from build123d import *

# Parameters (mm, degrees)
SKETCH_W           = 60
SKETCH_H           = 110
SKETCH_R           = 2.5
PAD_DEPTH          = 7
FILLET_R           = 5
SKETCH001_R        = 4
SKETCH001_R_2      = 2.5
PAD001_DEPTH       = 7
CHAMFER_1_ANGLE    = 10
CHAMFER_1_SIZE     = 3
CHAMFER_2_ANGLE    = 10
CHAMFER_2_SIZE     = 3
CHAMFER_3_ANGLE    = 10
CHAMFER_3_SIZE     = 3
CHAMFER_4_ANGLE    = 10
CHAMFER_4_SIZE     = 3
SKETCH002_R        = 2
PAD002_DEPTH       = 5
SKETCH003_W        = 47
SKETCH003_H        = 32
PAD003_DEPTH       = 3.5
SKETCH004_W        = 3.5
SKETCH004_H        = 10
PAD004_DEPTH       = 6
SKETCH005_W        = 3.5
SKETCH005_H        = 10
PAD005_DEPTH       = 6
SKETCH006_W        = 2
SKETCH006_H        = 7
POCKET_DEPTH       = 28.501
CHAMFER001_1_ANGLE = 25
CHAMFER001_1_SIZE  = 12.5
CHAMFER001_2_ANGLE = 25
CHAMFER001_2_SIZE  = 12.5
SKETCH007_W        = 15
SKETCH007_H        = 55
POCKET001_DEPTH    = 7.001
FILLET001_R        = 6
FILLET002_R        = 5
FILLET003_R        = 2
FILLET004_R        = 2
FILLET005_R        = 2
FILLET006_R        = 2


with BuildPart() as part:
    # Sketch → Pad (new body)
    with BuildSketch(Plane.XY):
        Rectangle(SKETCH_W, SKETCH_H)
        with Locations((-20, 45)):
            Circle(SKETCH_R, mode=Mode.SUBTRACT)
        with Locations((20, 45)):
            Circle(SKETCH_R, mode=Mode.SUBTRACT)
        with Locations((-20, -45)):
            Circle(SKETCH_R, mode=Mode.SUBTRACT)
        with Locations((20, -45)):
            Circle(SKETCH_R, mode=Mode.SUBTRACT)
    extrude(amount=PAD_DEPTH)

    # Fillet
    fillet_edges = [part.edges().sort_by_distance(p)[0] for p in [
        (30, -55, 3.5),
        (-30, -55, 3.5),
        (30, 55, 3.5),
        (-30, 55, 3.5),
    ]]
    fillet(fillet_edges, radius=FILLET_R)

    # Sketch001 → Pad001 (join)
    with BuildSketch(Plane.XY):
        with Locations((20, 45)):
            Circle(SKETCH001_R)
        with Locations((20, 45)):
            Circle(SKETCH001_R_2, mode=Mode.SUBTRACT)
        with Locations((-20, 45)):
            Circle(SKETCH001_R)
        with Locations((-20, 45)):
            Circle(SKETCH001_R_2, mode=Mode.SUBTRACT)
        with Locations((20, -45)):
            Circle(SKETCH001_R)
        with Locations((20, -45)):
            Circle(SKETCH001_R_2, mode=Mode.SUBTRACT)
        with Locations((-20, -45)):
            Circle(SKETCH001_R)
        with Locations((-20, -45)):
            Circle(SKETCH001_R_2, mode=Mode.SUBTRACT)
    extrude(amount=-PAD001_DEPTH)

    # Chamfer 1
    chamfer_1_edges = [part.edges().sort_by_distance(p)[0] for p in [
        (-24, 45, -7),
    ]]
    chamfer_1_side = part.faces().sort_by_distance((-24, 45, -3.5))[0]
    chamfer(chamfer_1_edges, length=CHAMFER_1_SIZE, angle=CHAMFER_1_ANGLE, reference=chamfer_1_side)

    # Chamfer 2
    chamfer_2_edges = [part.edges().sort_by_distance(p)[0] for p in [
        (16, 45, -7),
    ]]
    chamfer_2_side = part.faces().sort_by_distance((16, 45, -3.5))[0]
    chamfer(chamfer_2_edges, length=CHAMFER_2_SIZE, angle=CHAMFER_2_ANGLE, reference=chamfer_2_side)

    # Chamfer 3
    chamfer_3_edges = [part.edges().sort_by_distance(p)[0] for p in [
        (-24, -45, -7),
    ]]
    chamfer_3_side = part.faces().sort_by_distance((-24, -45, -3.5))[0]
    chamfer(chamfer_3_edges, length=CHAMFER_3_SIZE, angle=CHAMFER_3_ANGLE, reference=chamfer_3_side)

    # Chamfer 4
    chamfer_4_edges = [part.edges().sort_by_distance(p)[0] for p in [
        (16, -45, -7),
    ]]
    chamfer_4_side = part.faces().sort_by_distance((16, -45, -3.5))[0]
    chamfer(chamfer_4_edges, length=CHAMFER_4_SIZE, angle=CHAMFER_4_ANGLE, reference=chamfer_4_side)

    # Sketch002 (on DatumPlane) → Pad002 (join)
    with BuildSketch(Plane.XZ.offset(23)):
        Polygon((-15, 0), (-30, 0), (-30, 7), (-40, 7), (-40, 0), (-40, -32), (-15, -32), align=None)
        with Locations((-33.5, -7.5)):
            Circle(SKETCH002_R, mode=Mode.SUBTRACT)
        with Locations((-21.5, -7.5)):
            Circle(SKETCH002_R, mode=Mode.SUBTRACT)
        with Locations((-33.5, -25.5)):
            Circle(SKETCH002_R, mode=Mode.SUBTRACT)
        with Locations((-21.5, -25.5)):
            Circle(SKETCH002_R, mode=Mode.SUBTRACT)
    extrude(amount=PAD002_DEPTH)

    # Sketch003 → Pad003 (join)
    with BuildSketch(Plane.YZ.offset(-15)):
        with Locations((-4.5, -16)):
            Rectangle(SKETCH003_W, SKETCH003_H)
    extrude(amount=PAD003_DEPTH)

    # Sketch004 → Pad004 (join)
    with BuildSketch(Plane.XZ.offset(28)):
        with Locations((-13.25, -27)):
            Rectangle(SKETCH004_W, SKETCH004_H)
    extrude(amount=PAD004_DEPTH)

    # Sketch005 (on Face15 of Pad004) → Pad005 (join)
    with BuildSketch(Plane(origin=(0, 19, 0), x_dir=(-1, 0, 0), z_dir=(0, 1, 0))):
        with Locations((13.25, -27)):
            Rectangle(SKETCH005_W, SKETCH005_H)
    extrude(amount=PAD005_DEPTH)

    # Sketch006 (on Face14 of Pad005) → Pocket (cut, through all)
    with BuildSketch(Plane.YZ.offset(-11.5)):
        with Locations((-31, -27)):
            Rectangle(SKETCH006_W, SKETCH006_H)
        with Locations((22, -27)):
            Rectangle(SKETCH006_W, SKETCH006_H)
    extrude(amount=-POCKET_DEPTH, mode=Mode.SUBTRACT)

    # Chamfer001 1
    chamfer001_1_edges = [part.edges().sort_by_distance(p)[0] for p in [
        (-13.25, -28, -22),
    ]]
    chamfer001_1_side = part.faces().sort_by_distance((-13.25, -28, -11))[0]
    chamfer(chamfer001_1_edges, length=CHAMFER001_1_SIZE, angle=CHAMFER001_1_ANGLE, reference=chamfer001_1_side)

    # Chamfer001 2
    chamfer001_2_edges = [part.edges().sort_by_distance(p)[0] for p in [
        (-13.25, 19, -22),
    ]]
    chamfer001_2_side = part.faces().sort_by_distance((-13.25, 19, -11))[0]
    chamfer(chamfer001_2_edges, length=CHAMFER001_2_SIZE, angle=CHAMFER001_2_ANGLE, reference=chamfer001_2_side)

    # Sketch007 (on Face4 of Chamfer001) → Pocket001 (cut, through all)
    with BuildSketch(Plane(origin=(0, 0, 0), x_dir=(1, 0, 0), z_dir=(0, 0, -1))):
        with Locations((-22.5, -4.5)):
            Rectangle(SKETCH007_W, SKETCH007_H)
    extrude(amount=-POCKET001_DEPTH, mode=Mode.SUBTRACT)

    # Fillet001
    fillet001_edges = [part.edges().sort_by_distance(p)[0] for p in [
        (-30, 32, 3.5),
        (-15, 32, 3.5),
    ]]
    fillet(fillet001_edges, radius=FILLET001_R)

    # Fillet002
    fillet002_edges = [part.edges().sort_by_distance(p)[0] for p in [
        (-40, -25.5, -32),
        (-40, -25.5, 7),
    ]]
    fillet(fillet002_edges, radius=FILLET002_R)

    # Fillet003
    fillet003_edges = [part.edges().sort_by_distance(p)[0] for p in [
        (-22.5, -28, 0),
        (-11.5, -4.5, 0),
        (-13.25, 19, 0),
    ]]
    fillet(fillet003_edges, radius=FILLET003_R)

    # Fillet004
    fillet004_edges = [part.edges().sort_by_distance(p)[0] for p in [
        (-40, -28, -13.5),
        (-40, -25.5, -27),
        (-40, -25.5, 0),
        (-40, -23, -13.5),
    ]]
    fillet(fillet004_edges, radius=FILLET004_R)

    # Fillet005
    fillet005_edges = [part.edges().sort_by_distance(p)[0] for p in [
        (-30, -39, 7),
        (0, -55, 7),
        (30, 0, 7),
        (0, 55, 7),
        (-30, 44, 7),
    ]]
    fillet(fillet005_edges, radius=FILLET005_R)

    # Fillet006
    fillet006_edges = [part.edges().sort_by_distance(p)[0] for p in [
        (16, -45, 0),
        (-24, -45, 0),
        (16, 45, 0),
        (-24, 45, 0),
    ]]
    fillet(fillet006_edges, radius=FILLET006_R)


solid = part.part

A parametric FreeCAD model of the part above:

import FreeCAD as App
import Part
import Sketcher
from FreeCAD import Vector
Q = App.Units.Quantity


def edges_at(feature, points):
    """Names of the edges that pass closest to the given points."""
    edges = feature.Shape.Edges
    near = lambda p: min(range(len(edges)), key=lambda i: edges[i].distToShape(Part.Vertex(*p))[0])
    return sorted({f"Edge{near(p) + 1}" for p in points})

doc = App.newDocument("Part")
body = doc.addObject("PartDesign::Body", "Body")

# Sketch on XY plane
sketch1 = doc.addObject("Sketcher::SketchObject", "Sketch")
body.addObject(sketch1)
sketch1.AttachmentSupport = (doc.XY_Plane, [""])
sketch1.MapMode = "FlatFace"
sketch1.addGeometry(Part.LineSegment(Vector(-30, 55, 0), Vector(-30, -55, 0)), False)
sketch1.addGeometry(Part.LineSegment(Vector(-30, -55, 0), Vector(30, -55, 0)), False)
sketch1.addGeometry(Part.LineSegment(Vector(30, -55, 0), Vector(30, 55, 0)), False)
sketch1.addGeometry(Part.LineSegment(Vector(30, 55, 0), Vector(-30, 55, 0)), False)
sketch1.addGeometry(Part.Circle(Vector(-20, -45, 0), Vector(0, 0, 1), 2.5), False)
sketch1.addGeometry(Part.Circle(Vector(20, -45, 0), Vector(0, 0, 1), 2.5), False)
sketch1.addGeometry(Part.Circle(Vector(-20, 45, 0), Vector(0, 0, 1), 2.5), False)
sketch1.addGeometry(Part.Circle(Vector(20, 45, 0), Vector(0, 0, 1), 2.5), False)
sketch1.addConstraint(Sketcher.Constraint("Coincident", 0, 2, 1, 1))
sketch1.addConstraint(Sketcher.Constraint("Coincident", 1, 2, 2, 1))
sketch1.addConstraint(Sketcher.Constraint("Coincident", 2, 2, 3, 1))
sketch1.addConstraint(Sketcher.Constraint("Coincident", 3, 2, 0, 1))
sketch1.addConstraint(Sketcher.Constraint("Vertical", 0))
sketch1.addConstraint(Sketcher.Constraint("Horizontal", 1))
sketch1.addConstraint(Sketcher.Constraint("Vertical", 2))
sketch1.addConstraint(Sketcher.Constraint("Horizontal", 3))
sketch1.addConstraint(Sketcher.Constraint("Equal", 4, 5))
sketch1.addConstraint(Sketcher.Constraint("Equal", 5, 6))
sketch1.addConstraint(Sketcher.Constraint("Equal", 6, 7))
sketch1.addConstraint(Sketcher.Constraint("Symmetric", 5, 3, 6, 3, -1, 1))
sketch1.addConstraint(Sketcher.Constraint("Symmetric", 4, 3, 7, 3, -1, 1))
sketch1.addConstraint(Sketcher.Constraint("Symmetric", 0, 2, 2, 2, -1, 1))
sketch1.addConstraint(Sketcher.Constraint("Symmetric", 4, 3, 5, 3, -2))
sketch1.addConstraint(Sketcher.Constraint("Diameter", 4, Q("5 mm")))
sketch1.addConstraint(Sketcher.Constraint("DistanceX", 1, 1, 1, 2, Q("60 mm")))
sketch1.addConstraint(Sketcher.Constraint("DistanceY", 0, 2, 0, 1, Q("110 mm")))
sketch1.addConstraint(Sketcher.Constraint("DistanceX", 4, 3, -1, 1, Q("20 mm")))
sketch1.addConstraint(Sketcher.Constraint("DistanceY", 4, 3, -1, 1, Q("45 mm")))
pad1 = doc.addObject("PartDesign::Pad", "Pad")
body.addObject(pad1)
pad1.Profile = sketch1
pad1.Length = 7
doc.recompute()

fillet = doc.addObject("PartDesign::Fillet", "Fillet")
body.addObject(fillet)
fillet.Base = (pad1, edges_at(pad1, [
    (30, -55, 3.5),
    (-30, -55, 3.5),
    (30, 55, 3.5),
    (-30, 55, 3.5),
]))
fillet.Radius = 5

# Sketch on XY plane
sketch2 = doc.addObject("Sketcher::SketchObject", "Sketch001")
body.addObject(sketch2)
sketch2.AttachmentSupport = (doc.XY_Plane, [""])
sketch2.MapMode = "FlatFace"
sketch2.addGeometry(Part.Circle(Vector(20, 45, 0), Vector(0, 0, 1), 4), False)
sketch2.addGeometry(Part.Circle(Vector(20, 45, 0), Vector(0, 0, 1), 2.5), False)
sketch2.addGeometry(Part.Circle(Vector(-20, 45, 0), Vector(0, 0, 1), 4), False)
sketch2.addGeometry(Part.Circle(Vector(-20, 45, 0), Vector(0, 0, 1), 2.5), False)
sketch2.addGeometry(Part.Circle(Vector(20, -45, 0), Vector(0, 0, 1), 4), False)
sketch2.addGeometry(Part.Circle(Vector(20, -45, 0), Vector(0, 0, 1), 2.5), False)
sketch2.addGeometry(Part.Circle(Vector(-20, -45, 0), Vector(0, 0, 1), 4), False)
sketch2.addGeometry(Part.Circle(Vector(-20, -45, 0), Vector(0, 0, 1), 2.5), False)
sketch2.addConstraint(Sketcher.Constraint("Coincident", 1, 3, 0, 3))
sketch2.addConstraint(Sketcher.Constraint("Coincident", 3, 3, 2, 3))
sketch2.addConstraint(Sketcher.Constraint("Coincident", 5, 3, 4, 3))
sketch2.addConstraint(Sketcher.Constraint("Coincident", 7, 3, 6, 3))
sketch2.addConstraint(Sketcher.Constraint("Equal", 0, 2))
sketch2.addConstraint(Sketcher.Constraint("Equal", 1, 3))
sketch2.addConstraint(Sketcher.Constraint("Equal", 2, 4))
sketch2.addConstraint(Sketcher.Constraint("Equal", 3, 5))
sketch2.addConstraint(Sketcher.Constraint("Equal", 4, 6))
sketch2.addConstraint(Sketcher.Constraint("Equal", 5, 7))
sketch2.addConstraint(Sketcher.Constraint("Symmetric", 2, 3, 4, 3, -1, 1))
sketch2.addConstraint(Sketcher.Constraint("Symmetric", 0, 3, 6, 3, -1, 1))
sketch2.addConstraint(Sketcher.Constraint("Symmetric", 0, 3, 2, 3, -2))
sketch2.addConstraint(Sketcher.Constraint("Diameter", 0, Q("8 mm")))
sketch2.addConstraint(Sketcher.Constraint("Diameter", 1, Q("5 mm")))
sketch2.addConstraint(Sketcher.Constraint("DistanceX", -1, 1, 0, 3, Q("20 mm")))
sketch2.addConstraint(Sketcher.Constraint("DistanceY", -1, 1, 0, 3, Q("45 mm")))
pad2 = doc.addObject("PartDesign::Pad", "Pad001")
body.addObject(pad2)
pad2.Profile = sketch2
pad2.Length = 7
pad2.Reversed = True
doc.recompute()

chamfer = doc.addObject("PartDesign::Chamfer", "Chamfer")
body.addObject(chamfer)
chamfer.Base = (pad2, edges_at(pad2, [(-24, 45, -7)]))
chamfer.ChamferType = "Distance and Angle"
chamfer.Size = 3
chamfer.Angle = 10
doc.recompute()

chamfer2 = doc.addObject("PartDesign::Chamfer", "Chamfer001")
body.addObject(chamfer2)
chamfer2.Base = (chamfer, edges_at(chamfer, [(16, 45, -7)]))
chamfer2.ChamferType = "Distance and Angle"
chamfer2.Size = 3
chamfer2.Angle = 10
doc.recompute()

chamfer3 = doc.addObject("PartDesign::Chamfer", "Chamfer002")
body.addObject(chamfer3)
chamfer3.Base = (chamfer2, edges_at(chamfer2, [(-24, -45, -7)]))
chamfer3.ChamferType = "Distance and Angle"
chamfer3.Size = 3
chamfer3.Angle = 10
doc.recompute()

chamfer4 = doc.addObject("PartDesign::Chamfer", "Chamfer003")
body.addObject(chamfer4)
chamfer4.Base = (chamfer3, edges_at(chamfer3, [(16, -45, -7)]))
chamfer4.ChamferType = "Distance and Angle"
chamfer4.Size = 3
chamfer4.Angle = 10

# Sketch on XZ plane
sketch3 = doc.addObject("Sketcher::SketchObject", "Sketch002")
body.addObject(sketch3)
sketch3.AttachmentSupport = (doc.XZ_Plane, [""])
sketch3.MapMode = "FlatFace"
sketch3.AttachmentOffset = App.Placement(Vector(0, 0, 23), App.Rotation())
sketch3.addGeometry(Part.LineSegment(Vector(-15, 0, 0), Vector(-30, 0, 0)), False)
sketch3.addGeometry(Part.LineSegment(Vector(-30, 0, 0), Vector(-30, 7, 0)), False)
sketch3.addGeometry(Part.LineSegment(Vector(-30, 7, 0), Vector(-40, 7, 0)), False)
sketch3.addGeometry(Part.LineSegment(Vector(-40, 7, 0), Vector(-40, -32, 0)), False)
sketch3.addGeometry(Part.LineSegment(Vector(-40, -32, 0), Vector(-15, -32, 0)), False)
sketch3.addGeometry(Part.LineSegment(Vector(-15, -32, 0), Vector(-15, 0, 0)), False)
sketch3.addGeometry(Part.Circle(Vector(-33.5, -25.5, 0), Vector(0, 0, 1), 2), False)
sketch3.addGeometry(Part.Circle(Vector(-21.5, -25.5, 0), Vector(0, 0, 1), 2), False)
sketch3.addGeometry(Part.Circle(Vector(-33.5, -7.5, 0), Vector(0, 0, 1), 2), False)
sketch3.addGeometry(Part.Circle(Vector(-21.5, -7.5, 0), Vector(0, 0, 1), 2), False)
sketch3.addConstraint(Sketcher.Constraint("Coincident", 0, 2, 1, 1))
sketch3.addConstraint(Sketcher.Constraint("Coincident", 1, 2, 2, 1))
sketch3.addConstraint(Sketcher.Constraint("Coincident", 2, 2, 3, 1))
sketch3.addConstraint(Sketcher.Constraint("Coincident", 3, 2, 4, 1))
sketch3.addConstraint(Sketcher.Constraint("Coincident", 4, 2, 5, 1))
sketch3.addConstraint(Sketcher.Constraint("Coincident", 5, 2, 0, 1))
sketch3.addConstraint(Sketcher.Constraint("Horizontal", 0))
sketch3.addConstraint(Sketcher.Constraint("Vertical", 1))
sketch3.addConstraint(Sketcher.Constraint("Horizontal", 2))
sketch3.addConstraint(Sketcher.Constraint("Vertical", 3))
sketch3.addConstraint(Sketcher.Constraint("Horizontal", 4))
sketch3.addConstraint(Sketcher.Constraint("Vertical", 5))
sketch3.addConstraint(Sketcher.Constraint("Equal", 6, 7))
sketch3.addConstraint(Sketcher.Constraint("Equal", 7, 8))
sketch3.addConstraint(Sketcher.Constraint("Equal", 8, 9))
sketch3.addConstraint(Sketcher.Constraint("PointOnObject", 0, 2, -1))
sketch3.addConstraint(Sketcher.Constraint("Horizontal", 6, 3, 7, 3))
sketch3.addConstraint(Sketcher.Constraint("Horizontal", 8, 3, 9, 3))
sketch3.addConstraint(Sketcher.Constraint("Vertical", 6, 3, 8, 3))
sketch3.addConstraint(Sketcher.Constraint("Vertical", 7, 3, 9, 3))
sketch3.addConstraint(Sketcher.Constraint("Diameter", 6, Q("4 mm")))
sketch3.addConstraint(Sketcher.Constraint("DistanceX", 0, 2, 0, 1, Q("15 mm")))
sketch3.addConstraint(Sketcher.Constraint("DistanceX", 2, 2, 2, 1, Q("10 mm")))
sketch3.addConstraint(Sketcher.Constraint("DistanceY", 1, 1, 1, 2, Q("7 mm")))
sketch3.addConstraint(Sketcher.Constraint("DistanceY", 3, 2, 3, 1, Q("39 mm")))
sketch3.addConstraint(Sketcher.Constraint("DistanceX", 0, 2, -1, 1, Q("30 mm")))
sketch3.addConstraint(Sketcher.Constraint("DistanceX", 6, 3, 7, 3, Q("12 mm")))
sketch3.addConstraint(Sketcher.Constraint("DistanceY", 6, 3, 8, 3, Q("18 mm")))
sketch3.addConstraint(Sketcher.Constraint("DistanceX", 6, 3, -1, 1, Q("33.5 mm")))
sketch3.addConstraint(Sketcher.Constraint("DistanceY", 6, 3, -1, 1, Q("25.5 mm")))
pad3 = doc.addObject("PartDesign::Pad", "Pad002")
body.addObject(pad3)
pad3.Profile = sketch3
pad3.Length = 5

# Sketch on YZ plane
sketch4 = doc.addObject("Sketcher::SketchObject", "Sketch003")
body.addObject(sketch4)
sketch4.AttachmentSupport = (doc.YZ_Plane, [""])
sketch4.MapMode = "FlatFace"
sketch4.AttachmentOffset = App.Placement(Vector(0, 0, -15), App.Rotation())
sketch4.addGeometry(Part.LineSegment(Vector(-28, 0, 0), Vector(-28, -32, 0)), False)
sketch4.addGeometry(Part.LineSegment(Vector(-28, -32, 0), Vector(19, -32, 0)), False)
sketch4.addGeometry(Part.LineSegment(Vector(19, -32, 0), Vector(19, 0, 0)), False)
sketch4.addGeometry(Part.LineSegment(Vector(19, 0, 0), Vector(-28, 0, 0)), False)
sketch4.addConstraint(Sketcher.Constraint("Coincident", 0, 2, 1, 1))
sketch4.addConstraint(Sketcher.Constraint("Coincident", 1, 2, 2, 1))
sketch4.addConstraint(Sketcher.Constraint("Coincident", 2, 2, 3, 1))
sketch4.addConstraint(Sketcher.Constraint("Coincident", 3, 2, 0, 1))
sketch4.addConstraint(Sketcher.Constraint("Vertical", 0))
sketch4.addConstraint(Sketcher.Constraint("Horizontal", 1))
sketch4.addConstraint(Sketcher.Constraint("Vertical", 2))
sketch4.addConstraint(Sketcher.Constraint("Horizontal", 3))
sketch4.addConstraint(Sketcher.Constraint("PointOnObject", 2, 2, -1))
sketch4.addConstraint(Sketcher.Constraint("DistanceX", 1, 1, 1, 2, Q("47 mm")))
sketch4.addConstraint(Sketcher.Constraint("DistanceY", 0, 2, 0, 1, Q("32 mm")))
sketch4.addConstraint(Sketcher.Constraint("DistanceX", 0, 2, -1, 1, Q("28 mm")))
pad4 = doc.addObject("PartDesign::Pad", "Pad003")
body.addObject(pad4)
pad4.Profile = sketch4
pad4.Length = 3.5

# Sketch on XZ plane
sketch5 = doc.addObject("Sketcher::SketchObject", "Sketch004")
body.addObject(sketch5)
sketch5.AttachmentSupport = (doc.XZ_Plane, [""])
sketch5.MapMode = "FlatFace"
sketch5.AttachmentOffset = App.Placement(Vector(0, 0, 28), App.Rotation())
sketch5.addGeometry(Part.LineSegment(Vector(-15, -22, 0), Vector(-15, -32, 0)), False)
sketch5.addGeometry(Part.LineSegment(Vector(-15, -32, 0), Vector(-11.5, -32, 0)), False)
sketch5.addGeometry(Part.LineSegment(Vector(-11.5, -32, 0), Vector(-11.5, -22, 0)), False)
sketch5.addGeometry(Part.LineSegment(Vector(-11.5, -22, 0), Vector(-15, -22, 0)), False)
sketch5.addConstraint(Sketcher.Constraint("Coincident", 0, 2, 1, 1))
sketch5.addConstraint(Sketcher.Constraint("Coincident", 1, 2, 2, 1))
sketch5.addConstraint(Sketcher.Constraint("Coincident", 2, 2, 3, 1))
sketch5.addConstraint(Sketcher.Constraint("Coincident", 3, 2, 0, 1))
sketch5.addConstraint(Sketcher.Constraint("Vertical", 0))
sketch5.addConstraint(Sketcher.Constraint("Horizontal", 1))
sketch5.addConstraint(Sketcher.Constraint("Vertical", 2))
sketch5.addConstraint(Sketcher.Constraint("Horizontal", 3))
sketch5.addConstraint(Sketcher.Constraint("DistanceY", 0, 2, 0, 1, Q("10 mm")))
sketch5.addConstraint(Sketcher.Constraint("DistanceX", 1, 1, 1, 2, Q("3.5 mm")))
sketch5.addConstraint(Sketcher.Constraint("DistanceX", 0, 2, -1, 1, Q("15 mm")))
sketch5.addConstraint(Sketcher.Constraint("DistanceY", 0, 2, -1, 1, Q("32 mm")))
pad5 = doc.addObject("PartDesign::Pad", "Pad004")
body.addObject(pad5)
pad5.Profile = sketch5
pad5.Length = 6

# Sketch on XZ plane
sketch6 = doc.addObject("Sketcher::SketchObject", "Sketch005")
body.addObject(sketch6)
sketch6.AttachmentSupport = (doc.XZ_Plane, [""])
sketch6.MapMode = "FlatFace"
sketch6.AttachmentOffset = App.Placement(Vector(0, 0, -19), App.Rotation())
sketch6.addGeometry(Part.LineSegment(Vector(-11.5, -22, 0), Vector(-11.5, -32, 0)), False)
sketch6.addGeometry(Part.LineSegment(Vector(-11.5, -32, 0), Vector(-15, -32, 0)), False)
sketch6.addGeometry(Part.LineSegment(Vector(-15, -32, 0), Vector(-15, -22, 0)), False)
sketch6.addGeometry(Part.LineSegment(Vector(-15, -22, 0), Vector(-11.5, -22, 0)), False)
sketch6.addConstraint(Sketcher.Constraint("Coincident", 0, 2, 1, 1))
sketch6.addConstraint(Sketcher.Constraint("Coincident", 1, 2, 2, 1))
sketch6.addConstraint(Sketcher.Constraint("Coincident", 2, 2, 3, 1))
sketch6.addConstraint(Sketcher.Constraint("Coincident", 3, 2, 0, 1))
sketch6.addConstraint(Sketcher.Constraint("Vertical", 0))
sketch6.addConstraint(Sketcher.Constraint("Horizontal", 1))
sketch6.addConstraint(Sketcher.Constraint("Vertical", 2))
sketch6.addConstraint(Sketcher.Constraint("Horizontal", 3))
sketch6.addConstraint(Sketcher.Constraint("DistanceY", 0, 2, 0, 1, Q("10 mm")))
sketch6.addConstraint(Sketcher.Constraint("DistanceX", 1, 2, 1, 1, Q("3.5 mm")))
sketch6.addConstraint(Sketcher.Constraint("DistanceY", 0, 2, -1, 1, Q("32 mm")))
sketch6.addConstraint(Sketcher.Constraint("DistanceX", 1, 2, -1, 1, Q("15 mm")))
pad6 = doc.addObject("PartDesign::Pad", "Pad005")
body.addObject(pad6)
pad6.Profile = sketch6
pad6.Length = 6
pad6.Reversed = True

# Sketch on YZ plane
sketch7 = doc.addObject("Sketcher::SketchObject", "Sketch006")
body.addObject(sketch7)
sketch7.AttachmentSupport = (doc.YZ_Plane, [""])
sketch7.MapMode = "FlatFace"
sketch7.AttachmentOffset = App.Placement(Vector(0, 0, -11.5), App.Rotation())
sketch7.addGeometry(Part.LineSegment(Vector(-32, -23.5, 0), Vector(-32, -30.5, 0)), False)
sketch7.addGeometry(Part.LineSegment(Vector(-32, -30.5, 0), Vector(-30, -30.5, 0)), False)
sketch7.addGeometry(Part.LineSegment(Vector(-30, -30.5, 0), Vector(-30, -23.5, 0)), False)
sketch7.addGeometry(Part.LineSegment(Vector(-30, -23.5, 0), Vector(-32, -23.5, 0)), False)
sketch7.addGeometry(Part.LineSegment(Vector(21, -23.5, 0), Vector(21, -30.5, 0)), False)
sketch7.addGeometry(Part.LineSegment(Vector(21, -30.5, 0), Vector(23, -30.5, 0)), False)
sketch7.addGeometry(Part.LineSegment(Vector(23, -30.5, 0), Vector(23, -23.5, 0)), False)
sketch7.addGeometry(Part.LineSegment(Vector(23, -23.5, 0), Vector(21, -23.5, 0)), False)
sketch7.addConstraint(Sketcher.Constraint("Coincident", 0, 2, 1, 1))
sketch7.addConstraint(Sketcher.Constraint("Coincident", 1, 2, 2, 1))
sketch7.addConstraint(Sketcher.Constraint("Coincident", 2, 2, 3, 1))
sketch7.addConstraint(Sketcher.Constraint("Coincident", 3, 2, 0, 1))
sketch7.addConstraint(Sketcher.Constraint("Coincident", 4, 2, 5, 1))
sketch7.addConstraint(Sketcher.Constraint("Coincident", 5, 2, 6, 1))
sketch7.addConstraint(Sketcher.Constraint("Coincident", 6, 2, 7, 1))
sketch7.addConstraint(Sketcher.Constraint("Coincident", 7, 2, 4, 1))
sketch7.addConstraint(Sketcher.Constraint("Vertical", 0))
sketch7.addConstraint(Sketcher.Constraint("Horizontal", 1))
sketch7.addConstraint(Sketcher.Constraint("Vertical", 2))
sketch7.addConstraint(Sketcher.Constraint("Horizontal", 3))
sketch7.addConstraint(Sketcher.Constraint("Vertical", 4))
sketch7.addConstraint(Sketcher.Constraint("Horizontal", 5))
sketch7.addConstraint(Sketcher.Constraint("Vertical", 6))
sketch7.addConstraint(Sketcher.Constraint("Horizontal", 7))
sketch7.addConstraint(Sketcher.Constraint("Horizontal", 1, 2, 4, 2))
sketch7.addConstraint(Sketcher.Constraint("Horizontal", 3, 2, 6, 2))
sketch7.addConstraint(Sketcher.Constraint("Equal", 3, 5))
sketch7.addConstraint(Sketcher.Constraint("DistanceX", 1, 1, 1, 2, Q("2 mm")))
sketch7.addConstraint(Sketcher.Constraint("DistanceY", 0, 2, 0, 1, Q("7 mm")))
sketch7.addConstraint(Sketcher.Constraint("DistanceX", 0, 2, -1, 1, Q("32 mm")))
sketch7.addConstraint(Sketcher.Constraint("DistanceX", -1, 1, 4, 2, Q("21 mm")))
sketch7.addConstraint(Sketcher.Constraint("DistanceY", 0, 2, -1, 1, Q("30.5 mm")))
pocket1 = doc.addObject("PartDesign::Pocket", "Pocket")
body.addObject(pocket1)
pocket1.Profile = sketch7
pocket1.Type = "ThroughAll"
doc.recompute()

chamfer5 = doc.addObject("PartDesign::Chamfer", "Chamfer004")
body.addObject(chamfer5)
chamfer5.Base = (pocket1, edges_at(pocket1, [(-13.25, -28, -22)]))
chamfer5.ChamferType = "Distance and Angle"
chamfer5.Size = 12.5
chamfer5.Angle = 25
doc.recompute()

chamfer6 = doc.addObject("PartDesign::Chamfer", "Chamfer005")
body.addObject(chamfer6)
chamfer6.Base = (chamfer5, edges_at(chamfer5, [(-13.25, 19, -22)]))
chamfer6.ChamferType = "Distance and Angle"
chamfer6.Size = 12.5
chamfer6.Angle = 25

# Sketch on XY plane
sketch8 = doc.addObject("Sketcher::SketchObject", "Sketch007")
body.addObject(sketch8)
sketch8.AttachmentSupport = (doc.XY_Plane, [""])
sketch8.MapMode = "FlatFace"
sketch8.addGeometry(Part.LineSegment(Vector(-30, -23, 0), Vector(-30, 32, 0)), False)
sketch8.addGeometry(Part.LineSegment(Vector(-30, 32, 0), Vector(-15, 32, 0)), False)
sketch8.addGeometry(Part.LineSegment(Vector(-15, 32, 0), Vector(-15, -23, 0)), False)
sketch8.addGeometry(Part.LineSegment(Vector(-15, -23, 0), Vector(-30, -23, 0)), False)
sketch8.addConstraint(Sketcher.Constraint("Coincident", 0, 2, 1, 1))
sketch8.addConstraint(Sketcher.Constraint("Coincident", 1, 2, 2, 1))
sketch8.addConstraint(Sketcher.Constraint("Coincident", 2, 2, 3, 1))
sketch8.addConstraint(Sketcher.Constraint("Coincident", 3, 2, 0, 1))
sketch8.addConstraint(Sketcher.Constraint("Vertical", 0))
sketch8.addConstraint(Sketcher.Constraint("Horizontal", 1))
sketch8.addConstraint(Sketcher.Constraint("Vertical", 2))
sketch8.addConstraint(Sketcher.Constraint("Horizontal", 3))
sketch8.addConstraint(Sketcher.Constraint("DistanceX", 1, 1, 1, 2, Q("15 mm")))
sketch8.addConstraint(Sketcher.Constraint("DistanceY", 0, 1, 0, 2, Q("55 mm")))
sketch8.addConstraint(Sketcher.Constraint("DistanceX", 0, 2, -1, 1, Q("30 mm")))
sketch8.addConstraint(Sketcher.Constraint("DistanceY", -1, 1, 0, 2, Q("32 mm")))
pocket2 = doc.addObject("PartDesign::Pocket", "Pocket001")
body.addObject(pocket2)
pocket2.Profile = sketch8
pocket2.Type = "ThroughAll"
pocket2.Reversed = True
doc.recompute()

fillet2 = doc.addObject("PartDesign::Fillet", "Fillet001")
body.addObject(fillet2)
fillet2.Base = (pocket2, edges_at(pocket2, [(-30, 32, 3.5), (-15, 32, 3.5)]))
fillet2.Radius = 6
doc.recompute()

fillet3 = doc.addObject("PartDesign::Fillet", "Fillet002")
body.addObject(fillet3)
fillet3.Base = (fillet2, edges_at(fillet2, [(-40, -25.5, -32), (-40, -25.5, 7)]))
fillet3.Radius = 5
doc.recompute()

fillet4 = doc.addObject("PartDesign::Fillet", "Fillet003")
body.addObject(fillet4)
fillet4.Base = (fillet3, edges_at(fillet3, [(-20.75, -28, 0), (-11.5, -4.5, 0), (-13.25, 19, 0)]))
fillet4.Radius = 2
doc.recompute()

fillet5 = doc.addObject("PartDesign::Fillet", "Fillet004")
body.addObject(fillet5)
fillet5.Base = (fillet4, edges_at(fillet4, [
    (-40, -28, -12.5),
    (-40, -25.5, -27),
    (-40, -25.5, 2),
    (-40, -23, -12.5),
]))
fillet5.Radius = 2
doc.recompute()

fillet6 = doc.addObject("PartDesign::Fillet", "Fillet005")
body.addObject(fillet6)
fillet6.Base = (fillet5, edges_at(fillet5, [
    (-30, -38, 7),
    (0, -55, 7),
    (30, 0, 7),
    (0, 55, 7),
    (-30, 44, 7),
]))
fillet6.Radius = 2
doc.recompute()

fillet7 = doc.addObject("PartDesign::Fillet", "Fillet006")
body.addObject(fillet7)
fillet7.Base = (fillet6, edges_at(fillet6, [
    (16, -45, 0),
    (-24, -45, 0),
    (16, 45, 0),
    (-24, 45, 0),
]))
fillet7.Radius = 2

doc.recompute()
